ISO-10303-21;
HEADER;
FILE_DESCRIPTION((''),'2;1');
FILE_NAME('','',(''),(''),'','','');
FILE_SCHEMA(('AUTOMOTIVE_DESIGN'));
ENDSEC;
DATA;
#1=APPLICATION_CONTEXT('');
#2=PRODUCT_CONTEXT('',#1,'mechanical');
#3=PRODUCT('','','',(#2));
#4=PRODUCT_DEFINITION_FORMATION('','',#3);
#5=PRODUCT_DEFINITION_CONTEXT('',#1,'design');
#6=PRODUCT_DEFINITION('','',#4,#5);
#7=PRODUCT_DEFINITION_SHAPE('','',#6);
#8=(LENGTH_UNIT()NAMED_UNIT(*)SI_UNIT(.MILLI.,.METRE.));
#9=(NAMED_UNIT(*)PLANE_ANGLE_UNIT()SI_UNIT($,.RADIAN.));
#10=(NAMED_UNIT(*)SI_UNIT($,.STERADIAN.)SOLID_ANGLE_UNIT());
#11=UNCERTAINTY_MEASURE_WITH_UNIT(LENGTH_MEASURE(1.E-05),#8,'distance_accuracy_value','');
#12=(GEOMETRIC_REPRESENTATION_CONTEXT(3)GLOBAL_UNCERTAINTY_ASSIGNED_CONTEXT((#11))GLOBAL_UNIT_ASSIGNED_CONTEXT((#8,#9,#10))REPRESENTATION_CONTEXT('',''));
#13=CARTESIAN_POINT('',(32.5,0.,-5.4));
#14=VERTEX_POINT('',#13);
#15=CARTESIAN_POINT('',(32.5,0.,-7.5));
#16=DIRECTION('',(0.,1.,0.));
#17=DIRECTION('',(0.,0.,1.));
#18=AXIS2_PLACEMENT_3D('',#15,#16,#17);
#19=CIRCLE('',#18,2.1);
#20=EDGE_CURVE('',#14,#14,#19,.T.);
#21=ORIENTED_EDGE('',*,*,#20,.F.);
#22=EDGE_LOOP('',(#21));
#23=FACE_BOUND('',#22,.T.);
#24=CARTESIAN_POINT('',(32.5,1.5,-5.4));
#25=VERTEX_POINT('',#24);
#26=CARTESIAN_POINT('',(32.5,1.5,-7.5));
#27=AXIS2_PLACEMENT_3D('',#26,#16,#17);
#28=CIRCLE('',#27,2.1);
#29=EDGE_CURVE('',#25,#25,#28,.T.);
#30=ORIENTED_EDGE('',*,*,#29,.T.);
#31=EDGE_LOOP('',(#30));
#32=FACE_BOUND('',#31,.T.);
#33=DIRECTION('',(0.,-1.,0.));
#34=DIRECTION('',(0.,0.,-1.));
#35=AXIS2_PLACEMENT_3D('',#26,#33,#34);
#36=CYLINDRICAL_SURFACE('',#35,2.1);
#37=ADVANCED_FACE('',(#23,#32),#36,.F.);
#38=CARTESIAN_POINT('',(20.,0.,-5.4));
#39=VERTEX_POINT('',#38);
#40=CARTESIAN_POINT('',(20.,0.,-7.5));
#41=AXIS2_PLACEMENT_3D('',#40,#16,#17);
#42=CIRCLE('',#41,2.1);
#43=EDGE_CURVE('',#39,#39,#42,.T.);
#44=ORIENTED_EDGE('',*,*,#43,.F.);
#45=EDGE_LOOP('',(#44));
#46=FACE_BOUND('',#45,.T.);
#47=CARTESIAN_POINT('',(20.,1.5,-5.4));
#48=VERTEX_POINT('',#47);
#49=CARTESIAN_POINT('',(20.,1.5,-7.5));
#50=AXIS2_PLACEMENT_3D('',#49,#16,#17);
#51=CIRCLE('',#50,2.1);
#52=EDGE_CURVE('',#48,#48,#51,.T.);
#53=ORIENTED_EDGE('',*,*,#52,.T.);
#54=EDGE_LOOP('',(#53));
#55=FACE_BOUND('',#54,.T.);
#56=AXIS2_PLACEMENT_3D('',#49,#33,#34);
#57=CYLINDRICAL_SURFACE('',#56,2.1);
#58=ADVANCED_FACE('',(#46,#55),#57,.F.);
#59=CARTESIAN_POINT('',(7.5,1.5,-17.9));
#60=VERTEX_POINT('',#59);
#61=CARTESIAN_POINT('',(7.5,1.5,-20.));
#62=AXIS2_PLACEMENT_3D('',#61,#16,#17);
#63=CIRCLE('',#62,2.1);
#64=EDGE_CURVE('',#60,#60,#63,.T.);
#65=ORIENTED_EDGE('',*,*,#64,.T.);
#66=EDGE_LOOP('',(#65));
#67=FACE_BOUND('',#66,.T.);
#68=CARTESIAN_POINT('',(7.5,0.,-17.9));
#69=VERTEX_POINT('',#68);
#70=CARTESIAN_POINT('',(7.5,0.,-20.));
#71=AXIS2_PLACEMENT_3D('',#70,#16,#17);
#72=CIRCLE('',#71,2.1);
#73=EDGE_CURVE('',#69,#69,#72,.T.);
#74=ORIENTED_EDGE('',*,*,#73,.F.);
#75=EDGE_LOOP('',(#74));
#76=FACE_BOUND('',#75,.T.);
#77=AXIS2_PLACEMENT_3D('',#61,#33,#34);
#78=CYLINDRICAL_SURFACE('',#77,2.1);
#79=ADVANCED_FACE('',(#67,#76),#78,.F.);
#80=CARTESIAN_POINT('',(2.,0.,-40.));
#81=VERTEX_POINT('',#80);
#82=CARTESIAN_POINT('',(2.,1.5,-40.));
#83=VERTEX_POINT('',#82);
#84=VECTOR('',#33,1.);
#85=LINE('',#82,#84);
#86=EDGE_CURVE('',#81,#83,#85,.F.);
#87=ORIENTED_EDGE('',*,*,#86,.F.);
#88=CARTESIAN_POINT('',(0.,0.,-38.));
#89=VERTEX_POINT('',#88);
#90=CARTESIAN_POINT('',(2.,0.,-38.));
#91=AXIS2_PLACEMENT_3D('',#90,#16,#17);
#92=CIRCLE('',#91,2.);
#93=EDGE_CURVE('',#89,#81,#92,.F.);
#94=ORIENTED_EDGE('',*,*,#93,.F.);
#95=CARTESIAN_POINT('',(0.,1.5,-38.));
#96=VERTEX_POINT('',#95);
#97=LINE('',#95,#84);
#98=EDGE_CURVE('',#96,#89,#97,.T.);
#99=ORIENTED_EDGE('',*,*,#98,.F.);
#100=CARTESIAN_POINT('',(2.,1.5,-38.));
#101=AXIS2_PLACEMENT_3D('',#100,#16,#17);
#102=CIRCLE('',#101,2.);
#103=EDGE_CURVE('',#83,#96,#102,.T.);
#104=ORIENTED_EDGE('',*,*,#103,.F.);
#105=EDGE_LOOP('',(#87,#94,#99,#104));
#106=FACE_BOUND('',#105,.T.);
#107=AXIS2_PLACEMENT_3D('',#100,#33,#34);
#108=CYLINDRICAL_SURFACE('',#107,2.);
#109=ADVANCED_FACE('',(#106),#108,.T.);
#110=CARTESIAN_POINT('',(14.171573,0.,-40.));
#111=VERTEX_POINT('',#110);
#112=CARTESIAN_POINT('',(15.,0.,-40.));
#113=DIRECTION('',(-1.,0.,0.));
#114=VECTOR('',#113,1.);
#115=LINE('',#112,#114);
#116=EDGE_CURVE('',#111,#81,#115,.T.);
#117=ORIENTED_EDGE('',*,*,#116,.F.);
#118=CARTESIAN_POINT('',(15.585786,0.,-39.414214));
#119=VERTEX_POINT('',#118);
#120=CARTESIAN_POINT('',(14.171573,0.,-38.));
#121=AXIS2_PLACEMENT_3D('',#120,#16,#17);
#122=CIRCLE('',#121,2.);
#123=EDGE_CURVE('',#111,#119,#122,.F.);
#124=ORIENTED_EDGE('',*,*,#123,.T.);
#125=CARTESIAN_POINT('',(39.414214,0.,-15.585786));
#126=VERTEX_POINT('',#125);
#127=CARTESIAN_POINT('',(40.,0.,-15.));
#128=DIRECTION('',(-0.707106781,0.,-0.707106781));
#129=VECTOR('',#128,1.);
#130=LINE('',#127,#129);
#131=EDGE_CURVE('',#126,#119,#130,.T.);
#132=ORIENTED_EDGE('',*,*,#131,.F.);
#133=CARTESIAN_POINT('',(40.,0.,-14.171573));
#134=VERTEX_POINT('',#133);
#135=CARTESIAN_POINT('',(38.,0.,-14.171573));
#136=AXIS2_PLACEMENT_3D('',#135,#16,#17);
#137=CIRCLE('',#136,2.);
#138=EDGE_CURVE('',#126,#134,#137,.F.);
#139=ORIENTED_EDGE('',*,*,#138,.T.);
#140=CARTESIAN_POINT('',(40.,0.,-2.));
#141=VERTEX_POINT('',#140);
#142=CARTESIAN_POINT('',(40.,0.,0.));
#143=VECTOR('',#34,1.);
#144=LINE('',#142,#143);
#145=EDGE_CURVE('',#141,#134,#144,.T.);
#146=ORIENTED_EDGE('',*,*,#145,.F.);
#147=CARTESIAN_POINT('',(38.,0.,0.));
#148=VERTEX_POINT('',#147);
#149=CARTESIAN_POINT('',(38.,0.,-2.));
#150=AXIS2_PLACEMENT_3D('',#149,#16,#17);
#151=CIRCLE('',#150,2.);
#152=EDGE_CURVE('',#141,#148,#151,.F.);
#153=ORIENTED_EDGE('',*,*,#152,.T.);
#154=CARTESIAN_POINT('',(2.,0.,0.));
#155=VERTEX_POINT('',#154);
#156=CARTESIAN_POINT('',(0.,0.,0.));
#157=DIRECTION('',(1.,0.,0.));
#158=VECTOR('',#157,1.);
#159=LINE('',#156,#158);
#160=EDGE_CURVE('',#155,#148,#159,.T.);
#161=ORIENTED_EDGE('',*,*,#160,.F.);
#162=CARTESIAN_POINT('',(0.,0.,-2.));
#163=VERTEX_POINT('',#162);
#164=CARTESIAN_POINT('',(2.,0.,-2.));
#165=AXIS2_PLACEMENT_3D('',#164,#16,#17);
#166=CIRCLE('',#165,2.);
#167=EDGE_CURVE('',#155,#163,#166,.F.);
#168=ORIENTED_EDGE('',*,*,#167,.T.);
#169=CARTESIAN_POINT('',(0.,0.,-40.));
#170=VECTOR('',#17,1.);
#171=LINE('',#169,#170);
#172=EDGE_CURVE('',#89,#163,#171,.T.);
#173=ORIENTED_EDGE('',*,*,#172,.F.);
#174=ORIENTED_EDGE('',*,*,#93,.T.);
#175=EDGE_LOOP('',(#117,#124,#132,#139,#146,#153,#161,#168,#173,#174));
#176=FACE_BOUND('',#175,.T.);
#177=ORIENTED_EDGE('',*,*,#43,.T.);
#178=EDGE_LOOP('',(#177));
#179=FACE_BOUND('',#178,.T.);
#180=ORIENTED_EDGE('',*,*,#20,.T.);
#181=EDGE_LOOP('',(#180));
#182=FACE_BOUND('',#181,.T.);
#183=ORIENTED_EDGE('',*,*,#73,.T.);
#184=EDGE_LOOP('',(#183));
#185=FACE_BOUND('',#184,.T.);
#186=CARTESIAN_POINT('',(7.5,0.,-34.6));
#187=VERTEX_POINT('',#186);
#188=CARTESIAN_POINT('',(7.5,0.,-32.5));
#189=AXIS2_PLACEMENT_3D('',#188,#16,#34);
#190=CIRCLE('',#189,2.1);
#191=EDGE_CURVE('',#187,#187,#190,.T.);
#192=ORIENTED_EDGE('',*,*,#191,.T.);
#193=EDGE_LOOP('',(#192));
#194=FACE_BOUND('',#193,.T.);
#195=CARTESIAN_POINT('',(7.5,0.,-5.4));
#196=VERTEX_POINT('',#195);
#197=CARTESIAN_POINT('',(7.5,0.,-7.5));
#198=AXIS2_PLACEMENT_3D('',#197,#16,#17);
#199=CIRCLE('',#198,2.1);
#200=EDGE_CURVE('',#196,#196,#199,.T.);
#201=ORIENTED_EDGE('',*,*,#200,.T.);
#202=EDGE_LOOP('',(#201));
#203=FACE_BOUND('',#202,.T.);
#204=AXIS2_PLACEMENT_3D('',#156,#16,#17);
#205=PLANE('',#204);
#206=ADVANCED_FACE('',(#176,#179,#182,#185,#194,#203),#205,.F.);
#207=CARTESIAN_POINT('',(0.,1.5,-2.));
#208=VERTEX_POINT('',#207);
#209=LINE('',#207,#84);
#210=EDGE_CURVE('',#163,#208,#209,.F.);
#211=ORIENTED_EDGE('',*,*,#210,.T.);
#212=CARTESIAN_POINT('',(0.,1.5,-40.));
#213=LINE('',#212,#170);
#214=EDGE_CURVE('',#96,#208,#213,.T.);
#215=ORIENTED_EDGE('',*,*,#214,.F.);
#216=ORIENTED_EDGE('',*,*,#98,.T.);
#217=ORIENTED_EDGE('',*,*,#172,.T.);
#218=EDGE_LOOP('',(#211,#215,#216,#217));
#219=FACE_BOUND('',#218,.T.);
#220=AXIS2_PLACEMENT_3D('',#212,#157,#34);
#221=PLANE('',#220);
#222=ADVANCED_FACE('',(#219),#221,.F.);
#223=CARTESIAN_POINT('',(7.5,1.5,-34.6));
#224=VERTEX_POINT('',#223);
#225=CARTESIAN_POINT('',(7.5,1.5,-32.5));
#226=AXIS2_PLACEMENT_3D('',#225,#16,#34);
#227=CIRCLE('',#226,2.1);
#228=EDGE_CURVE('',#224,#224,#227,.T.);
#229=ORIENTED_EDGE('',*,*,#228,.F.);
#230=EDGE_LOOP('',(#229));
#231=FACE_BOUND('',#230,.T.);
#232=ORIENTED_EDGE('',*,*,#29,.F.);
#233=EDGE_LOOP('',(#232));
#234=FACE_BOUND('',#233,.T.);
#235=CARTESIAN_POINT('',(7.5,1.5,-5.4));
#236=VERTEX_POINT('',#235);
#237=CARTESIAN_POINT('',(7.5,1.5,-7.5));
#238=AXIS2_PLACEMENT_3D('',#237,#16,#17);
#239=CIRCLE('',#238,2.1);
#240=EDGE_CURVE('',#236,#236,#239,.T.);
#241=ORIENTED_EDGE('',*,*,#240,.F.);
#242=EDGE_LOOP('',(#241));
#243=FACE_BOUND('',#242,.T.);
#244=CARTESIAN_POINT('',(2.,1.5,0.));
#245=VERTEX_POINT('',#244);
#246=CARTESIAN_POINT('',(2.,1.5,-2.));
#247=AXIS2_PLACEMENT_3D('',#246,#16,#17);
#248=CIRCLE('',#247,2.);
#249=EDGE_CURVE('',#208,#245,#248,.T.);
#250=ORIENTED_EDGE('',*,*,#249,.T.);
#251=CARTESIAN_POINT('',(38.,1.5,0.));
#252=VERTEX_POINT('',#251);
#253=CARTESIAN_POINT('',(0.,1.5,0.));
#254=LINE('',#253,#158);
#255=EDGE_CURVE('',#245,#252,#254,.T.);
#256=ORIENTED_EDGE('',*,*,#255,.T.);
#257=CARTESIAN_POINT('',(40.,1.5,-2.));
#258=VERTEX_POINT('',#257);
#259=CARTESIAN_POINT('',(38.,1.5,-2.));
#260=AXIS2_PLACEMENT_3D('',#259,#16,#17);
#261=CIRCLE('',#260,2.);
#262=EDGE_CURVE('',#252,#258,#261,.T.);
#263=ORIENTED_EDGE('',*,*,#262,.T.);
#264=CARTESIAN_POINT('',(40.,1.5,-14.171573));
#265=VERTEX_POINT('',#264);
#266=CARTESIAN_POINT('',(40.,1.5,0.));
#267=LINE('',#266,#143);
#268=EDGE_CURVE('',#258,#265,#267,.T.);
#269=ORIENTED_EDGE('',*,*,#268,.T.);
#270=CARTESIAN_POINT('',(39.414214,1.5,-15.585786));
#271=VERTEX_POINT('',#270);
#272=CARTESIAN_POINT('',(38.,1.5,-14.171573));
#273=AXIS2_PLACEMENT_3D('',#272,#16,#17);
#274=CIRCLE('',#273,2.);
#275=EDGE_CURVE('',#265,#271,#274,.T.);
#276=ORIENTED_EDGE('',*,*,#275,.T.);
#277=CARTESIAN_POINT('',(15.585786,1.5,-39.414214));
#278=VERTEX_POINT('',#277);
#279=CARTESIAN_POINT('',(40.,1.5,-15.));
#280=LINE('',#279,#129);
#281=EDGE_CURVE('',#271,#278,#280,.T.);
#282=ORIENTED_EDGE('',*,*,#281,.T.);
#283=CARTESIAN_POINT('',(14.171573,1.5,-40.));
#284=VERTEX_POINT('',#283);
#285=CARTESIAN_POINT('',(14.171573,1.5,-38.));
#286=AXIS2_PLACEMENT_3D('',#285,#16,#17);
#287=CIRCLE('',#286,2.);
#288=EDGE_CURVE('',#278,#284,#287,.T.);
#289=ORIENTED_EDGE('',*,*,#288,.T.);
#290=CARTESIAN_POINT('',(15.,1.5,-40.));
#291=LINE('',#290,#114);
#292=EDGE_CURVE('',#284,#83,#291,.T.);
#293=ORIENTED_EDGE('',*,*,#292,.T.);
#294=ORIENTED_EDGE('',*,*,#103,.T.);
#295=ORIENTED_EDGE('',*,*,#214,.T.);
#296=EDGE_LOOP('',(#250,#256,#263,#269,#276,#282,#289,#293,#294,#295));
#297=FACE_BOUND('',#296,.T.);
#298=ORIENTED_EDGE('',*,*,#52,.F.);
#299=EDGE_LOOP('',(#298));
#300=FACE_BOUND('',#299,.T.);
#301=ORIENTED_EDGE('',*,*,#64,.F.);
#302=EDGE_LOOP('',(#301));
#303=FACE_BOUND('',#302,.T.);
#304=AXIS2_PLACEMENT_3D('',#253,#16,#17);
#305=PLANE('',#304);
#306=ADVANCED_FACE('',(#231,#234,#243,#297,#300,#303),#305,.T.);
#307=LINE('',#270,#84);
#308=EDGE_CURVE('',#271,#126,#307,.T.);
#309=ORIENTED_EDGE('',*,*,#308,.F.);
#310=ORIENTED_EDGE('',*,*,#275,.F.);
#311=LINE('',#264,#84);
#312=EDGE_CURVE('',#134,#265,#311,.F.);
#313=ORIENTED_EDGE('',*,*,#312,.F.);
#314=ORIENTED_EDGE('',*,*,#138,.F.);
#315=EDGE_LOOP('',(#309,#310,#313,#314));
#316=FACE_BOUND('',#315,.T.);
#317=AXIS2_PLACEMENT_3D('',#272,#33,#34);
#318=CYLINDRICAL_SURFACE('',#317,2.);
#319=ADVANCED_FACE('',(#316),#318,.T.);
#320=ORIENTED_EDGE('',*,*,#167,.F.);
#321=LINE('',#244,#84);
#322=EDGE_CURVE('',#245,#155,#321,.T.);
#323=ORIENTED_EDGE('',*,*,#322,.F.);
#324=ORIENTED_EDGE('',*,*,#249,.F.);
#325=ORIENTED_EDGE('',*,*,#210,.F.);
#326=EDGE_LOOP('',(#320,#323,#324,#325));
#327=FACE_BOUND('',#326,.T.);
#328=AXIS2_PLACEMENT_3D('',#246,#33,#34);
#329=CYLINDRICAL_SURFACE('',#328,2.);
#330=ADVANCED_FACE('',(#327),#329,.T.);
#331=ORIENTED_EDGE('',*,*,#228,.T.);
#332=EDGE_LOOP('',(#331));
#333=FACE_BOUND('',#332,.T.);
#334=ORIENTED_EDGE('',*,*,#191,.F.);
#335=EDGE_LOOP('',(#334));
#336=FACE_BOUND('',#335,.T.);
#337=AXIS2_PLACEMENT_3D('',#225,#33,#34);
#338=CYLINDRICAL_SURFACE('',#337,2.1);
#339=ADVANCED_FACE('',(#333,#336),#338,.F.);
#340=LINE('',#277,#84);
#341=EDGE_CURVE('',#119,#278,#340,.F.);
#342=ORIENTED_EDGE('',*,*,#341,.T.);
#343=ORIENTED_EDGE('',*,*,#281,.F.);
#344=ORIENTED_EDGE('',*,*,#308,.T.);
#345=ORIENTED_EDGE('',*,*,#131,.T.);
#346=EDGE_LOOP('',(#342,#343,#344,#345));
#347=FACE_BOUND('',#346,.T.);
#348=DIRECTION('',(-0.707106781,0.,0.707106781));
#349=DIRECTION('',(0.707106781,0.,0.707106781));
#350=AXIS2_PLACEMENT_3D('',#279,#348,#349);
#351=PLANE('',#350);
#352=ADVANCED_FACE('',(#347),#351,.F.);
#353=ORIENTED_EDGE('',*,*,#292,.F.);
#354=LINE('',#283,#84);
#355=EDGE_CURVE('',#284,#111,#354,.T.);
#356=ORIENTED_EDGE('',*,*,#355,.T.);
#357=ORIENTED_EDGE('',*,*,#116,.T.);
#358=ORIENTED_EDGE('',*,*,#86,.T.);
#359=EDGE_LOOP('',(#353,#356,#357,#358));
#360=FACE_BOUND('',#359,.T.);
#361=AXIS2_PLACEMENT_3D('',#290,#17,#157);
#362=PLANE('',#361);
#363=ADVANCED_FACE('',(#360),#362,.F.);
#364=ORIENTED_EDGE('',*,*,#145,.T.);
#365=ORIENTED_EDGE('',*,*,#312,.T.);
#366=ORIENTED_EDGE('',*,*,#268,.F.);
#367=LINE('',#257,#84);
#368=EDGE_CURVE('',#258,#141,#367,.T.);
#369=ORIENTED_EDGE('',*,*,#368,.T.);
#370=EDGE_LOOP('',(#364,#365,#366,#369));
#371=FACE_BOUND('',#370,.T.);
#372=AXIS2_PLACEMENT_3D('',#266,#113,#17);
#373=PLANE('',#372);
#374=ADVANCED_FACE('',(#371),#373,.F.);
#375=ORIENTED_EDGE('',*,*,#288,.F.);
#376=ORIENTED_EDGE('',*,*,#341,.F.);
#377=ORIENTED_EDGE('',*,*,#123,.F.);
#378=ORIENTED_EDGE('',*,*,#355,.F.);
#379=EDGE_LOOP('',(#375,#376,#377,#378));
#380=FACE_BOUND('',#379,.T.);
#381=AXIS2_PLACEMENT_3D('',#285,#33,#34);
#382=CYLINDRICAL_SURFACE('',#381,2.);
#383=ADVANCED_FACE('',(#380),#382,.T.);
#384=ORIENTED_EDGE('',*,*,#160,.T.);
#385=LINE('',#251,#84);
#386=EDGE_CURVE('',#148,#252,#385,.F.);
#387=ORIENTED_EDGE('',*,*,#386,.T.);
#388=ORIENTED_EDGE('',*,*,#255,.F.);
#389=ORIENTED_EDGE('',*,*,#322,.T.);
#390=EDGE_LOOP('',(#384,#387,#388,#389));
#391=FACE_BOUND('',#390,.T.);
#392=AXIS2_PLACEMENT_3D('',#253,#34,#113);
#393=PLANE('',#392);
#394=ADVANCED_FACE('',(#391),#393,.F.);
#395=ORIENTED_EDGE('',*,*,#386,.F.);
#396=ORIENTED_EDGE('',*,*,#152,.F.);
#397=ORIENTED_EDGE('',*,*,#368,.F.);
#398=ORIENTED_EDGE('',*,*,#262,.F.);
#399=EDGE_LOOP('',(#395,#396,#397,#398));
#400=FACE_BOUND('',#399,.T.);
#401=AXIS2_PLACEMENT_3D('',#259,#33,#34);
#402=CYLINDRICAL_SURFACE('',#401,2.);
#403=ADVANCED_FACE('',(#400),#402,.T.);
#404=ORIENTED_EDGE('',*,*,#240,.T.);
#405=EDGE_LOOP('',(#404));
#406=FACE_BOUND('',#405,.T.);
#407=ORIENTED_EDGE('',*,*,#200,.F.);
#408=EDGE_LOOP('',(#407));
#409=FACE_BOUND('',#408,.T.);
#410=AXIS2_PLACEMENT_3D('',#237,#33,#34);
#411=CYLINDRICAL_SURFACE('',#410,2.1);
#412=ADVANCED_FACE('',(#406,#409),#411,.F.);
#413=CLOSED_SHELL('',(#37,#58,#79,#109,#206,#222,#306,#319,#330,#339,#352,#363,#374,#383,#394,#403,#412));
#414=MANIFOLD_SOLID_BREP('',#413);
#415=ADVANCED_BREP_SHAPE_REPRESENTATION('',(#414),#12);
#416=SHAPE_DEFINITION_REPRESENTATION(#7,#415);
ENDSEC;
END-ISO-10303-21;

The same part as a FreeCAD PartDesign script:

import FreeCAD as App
import Part
import Sketcher
from FreeCAD import Vector
Q = App.Units.Quantity


def edges_at(feature, points):
    """Names of the edges that pass closest to the given points."""
    edges = feature.Shape.Edges
    near = lambda p: min(range(len(edges)), key=lambda i: edges[i].distToShape(Part.Vertex(*p))[0])
    return sorted({f"Edge{near(p) + 1}" for p in points})


def add_polygon(sketch, points):
    """Adds a closed chain of lines whose ends are joined by coincident constraints."""
    first, n = sketch.GeometryCount, len(points)
    for a, b in zip(points, points[1:] + points[:1]):
        sketch.addGeometry(Part.LineSegment(App.Vector(*a, 0), App.Vector(*b, 0)), False)
    for i in range(n):
        sketch.addConstraint(Sketcher.Constraint("Coincident", first + i, 2, first + (i + 1) % n, 1))

doc = App.newDocument("Part")
body = doc.addObject("PartDesign::Body", "Body")

sketch1 = body.newObject("Sketcher::SketchObject", "Sketch")
sketch1.AttachmentSupport = (doc.getObject("XZ_Plane"), [""])
sketch1.MapMode = "FlatFace"
add_polygon(sketch1, [(0, 0), (40, 0), (40, -15), (15, -40), (0, -40)])
sketch1.addGeometry(Part.Circle(Vector(7.5, -7.5, 0), Vector(0, 0, 1), 2.1), False)
sketch1.addGeometry(Part.Circle(Vector(7.5, -20, 0), Vector(0, 0, 1), 2.1), False)
sketch1.addGeometry(Part.Circle(Vector(20, -7.5, 0), Vector(0, 0, 1), 2.1), False)
sketch1.addGeometry(Part.Circle(Vector(32.5, -7.5, 0), Vector(0, 0, 1), 2.1), False)
sketch1.addGeometry(Part.Circle(Vector(7.5, -32.5, 0), Vector(0, 0, 1), 2.1), False)
sketch1.addConstraint([
    Sketcher.Constraint("Horizontal", 0),
    Sketcher.Constraint("Vertical", 1),
    Sketcher.Constraint("Horizontal", 3),
    Sketcher.Constraint("Vertical", 4),
    Sketcher.Constraint("Coincident", 4, 2, -1, 1),
    Sketcher.Constraint("Equal", 5, 6),
    Sketcher.Constraint("Equal", 6, 7),
    Sketcher.Constraint("Equal", 7, 8),
    Sketcher.Constraint("Equal", 8, 9),
    Sketcher.Constraint("Horizontal", 5, 3, 7, 3),
    Sketcher.Constraint("Horizontal", 7, 3, 8, 3),
    Sketcher.Constraint("Vertical", 5, 3, 6, 3),
    Sketcher.Constraint("Vertical", 6, 3, 9, 3),
    Sketcher.Constraint("Equal", 3, 1),
    Sketcher.Constraint("Equal", 0, 4),
    Sketcher.Constraint("Diameter", 5, Q("4.2 mm")),
    Sketcher.Constraint("DistanceX", 0, 1, 0, 2, Q("40 mm")),
    Sketcher.Constraint("DistanceX", 3, 2, 3, 1, Q("15 mm")),
    Sketcher.Constraint("DistanceY", 6, 3, -1, 1, Q("20 mm")),
    Sketcher.Constraint("DistanceX", -1, 1, 7, 3, Q("20 mm")),
    Sketcher.Constraint("DistanceX", 5, 3, 8, 3, Q("25 mm")),
    Sketcher.Constraint("DistanceY", 9, 3, 5, 3, Q("25 mm")),
    Sketcher.Constraint("DistanceX", -1, 1, 5, 3, Q("7.5 mm")),
    Sketcher.Constraint("DistanceY", 5, 3, -1, 1, Q("7.5 mm")),
])
pad1 = body.newObject("PartDesign::Pad", "Pad")
pad1.Profile = sketch1
pad1.Length = 1.5
pad1.Reversed = True
doc.recompute()

fillet = body.newObject("PartDesign::Fillet", "Fillet")
fillet.Base = (pad1, edges_at(pad1, [
    (0, 0.75, -40),
    (15, 0.75, -40),
    (40, 0.75, -15),
    (40, 0.75, 0),
    (0, 0.75, 0),
]))
fillet.Radius = 2

doc.recompute()
